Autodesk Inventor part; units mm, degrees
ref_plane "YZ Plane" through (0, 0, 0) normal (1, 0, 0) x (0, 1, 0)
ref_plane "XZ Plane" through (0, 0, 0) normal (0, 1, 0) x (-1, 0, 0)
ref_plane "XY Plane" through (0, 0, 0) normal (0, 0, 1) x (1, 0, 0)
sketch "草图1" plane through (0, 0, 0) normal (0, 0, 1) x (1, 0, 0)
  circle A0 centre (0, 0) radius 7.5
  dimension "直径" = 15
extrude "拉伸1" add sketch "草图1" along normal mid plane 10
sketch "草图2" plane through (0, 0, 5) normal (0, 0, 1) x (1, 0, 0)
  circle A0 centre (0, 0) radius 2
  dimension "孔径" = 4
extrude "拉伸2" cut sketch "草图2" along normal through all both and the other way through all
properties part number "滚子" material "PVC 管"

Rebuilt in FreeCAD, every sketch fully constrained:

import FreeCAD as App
import Part
import Sketcher
Q = App.Units.Quantity

doc = App.newDocument("Part")
body = doc.addObject("PartDesign::Body", "Body")

sketch1 = body.newObject("Sketcher::SketchObject", "Sketch")
sketch1.AttachmentSupport = (doc.getObject("XY_Plane"), [""])
sketch1.MapMode = "FlatFace"
sketch1.addGeometry(Part.Circle(App.Vector(0, 0, 0), App.Vector(0, 0, 1), 7.5), False)
sketch1.addConstraint([
    Sketcher.Constraint("Coincident", 0, 3, -1, 1),
    Sketcher.Constraint("Diameter", 0, Q("15 mm")),
])
pad1 = body.newObject("PartDesign::Pad", "Pad")
pad1.Profile = sketch1
pad1.Length = 10
pad1.Midplane = True

sketch2 = body.newObject("Sketcher::SketchObject", "Sketch001")
sketch2.AttachmentSupport = (doc.getObject("XY_Plane"), [""])
sketch2.MapMode = "FlatFace"
sketch2.AttachmentOffset = App.Placement(App.Vector(0, 0, 5), App.Rotation())
sketch2.addGeometry(Part.Circle(App.Vector(0, 0, 0), App.Vector(0, 0, 1), 2), False)
sketch2.addConstraint([
    Sketcher.Constraint("Coincident", 0, 3, -1, 1),
    Sketcher.Constraint("Diameter", 0, Q("4 mm")),
])
pocket1 = body.newObject("PartDesign::Pocket", "Pocket")
pocket1.Profile = sketch2
pocket1.Type = "ThroughAll"
pocket1.Midplane = True

doc.recompute()
